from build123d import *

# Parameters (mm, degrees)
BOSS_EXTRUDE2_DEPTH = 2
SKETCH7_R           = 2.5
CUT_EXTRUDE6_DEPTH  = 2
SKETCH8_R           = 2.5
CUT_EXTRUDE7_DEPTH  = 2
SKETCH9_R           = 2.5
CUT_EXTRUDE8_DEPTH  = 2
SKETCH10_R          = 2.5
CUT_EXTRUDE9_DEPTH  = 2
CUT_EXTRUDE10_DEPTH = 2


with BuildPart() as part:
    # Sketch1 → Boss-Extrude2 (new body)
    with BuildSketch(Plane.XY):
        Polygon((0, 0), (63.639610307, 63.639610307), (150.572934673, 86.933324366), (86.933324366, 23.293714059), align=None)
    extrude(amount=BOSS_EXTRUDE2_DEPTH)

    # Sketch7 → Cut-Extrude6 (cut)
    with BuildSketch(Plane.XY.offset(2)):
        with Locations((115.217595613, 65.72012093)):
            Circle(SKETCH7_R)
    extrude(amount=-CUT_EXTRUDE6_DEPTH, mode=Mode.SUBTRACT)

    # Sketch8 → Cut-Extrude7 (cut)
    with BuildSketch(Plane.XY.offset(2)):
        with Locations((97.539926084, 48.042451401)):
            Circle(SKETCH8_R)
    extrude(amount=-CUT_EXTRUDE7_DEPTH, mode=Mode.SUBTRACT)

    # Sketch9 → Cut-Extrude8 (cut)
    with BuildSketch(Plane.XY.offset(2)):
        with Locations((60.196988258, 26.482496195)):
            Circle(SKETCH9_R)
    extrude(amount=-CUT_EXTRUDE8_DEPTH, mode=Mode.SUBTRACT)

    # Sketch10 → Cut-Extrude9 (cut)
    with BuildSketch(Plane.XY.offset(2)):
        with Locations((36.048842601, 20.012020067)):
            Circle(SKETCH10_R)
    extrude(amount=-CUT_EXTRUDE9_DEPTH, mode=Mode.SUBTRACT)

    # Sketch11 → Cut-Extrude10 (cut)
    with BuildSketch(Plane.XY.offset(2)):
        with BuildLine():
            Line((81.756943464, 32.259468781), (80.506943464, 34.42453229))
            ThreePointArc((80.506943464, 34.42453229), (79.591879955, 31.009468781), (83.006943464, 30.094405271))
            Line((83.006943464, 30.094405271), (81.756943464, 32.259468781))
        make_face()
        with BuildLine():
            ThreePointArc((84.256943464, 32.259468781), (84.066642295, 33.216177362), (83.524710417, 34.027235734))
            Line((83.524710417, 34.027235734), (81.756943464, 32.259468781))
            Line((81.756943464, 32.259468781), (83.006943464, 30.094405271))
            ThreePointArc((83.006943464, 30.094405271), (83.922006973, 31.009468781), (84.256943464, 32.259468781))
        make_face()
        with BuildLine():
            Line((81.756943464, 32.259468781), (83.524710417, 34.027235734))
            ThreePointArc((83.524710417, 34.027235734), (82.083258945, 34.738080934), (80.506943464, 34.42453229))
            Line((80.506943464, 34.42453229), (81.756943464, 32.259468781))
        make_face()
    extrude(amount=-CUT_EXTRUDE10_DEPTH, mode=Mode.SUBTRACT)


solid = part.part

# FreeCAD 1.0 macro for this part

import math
import FreeCAD as App
import Part
import Sketcher
from FreeCAD import Vector
Q = App.Units.Quantity

doc = App.newDocument("Part")
body = doc.addObject("PartDesign::Body", "Body")

# Sketch on XY plane
sketch1 = body.newObject("Sketcher::SketchObject", "Sketch")
sketch1.AttachmentSupport = (doc.getObject("XY_Plane"), [""])
sketch1.MapMode = "FlatFace"
sketch1.addGeometry([
    Part.LineSegment(Vector(64, 64, 0), Vector(0, 0, 0)),
    Part.LineSegment(Vector(0, 0, 0), Vector(87, 23, 0)),
    Part.LineSegment(Vector(87, 23, 0), Vector(151, 87, 0)),
    Part.LineSegment(Vector(151, 87, 0), Vector(64, 64, 0)),
], False)
sketch1.addConstraint([
    Sketcher.Constraint("Coincident", 0, 2, 1, 1),
    Sketcher.Constraint("Coincident", 1, 2, 2, 1),
    Sketcher.Constraint("Coincident", 2, 2, 3, 1),
    Sketcher.Constraint("Coincident", 3, 2, 0, 1),
    Sketcher.Constraint("Coincident", 0, 2, -1, 1),
    Sketcher.Constraint("Parallel", 0, 2),
    Sketcher.Constraint("Parallel", 1, 3),
    Sketcher.Constraint("Equal", 0, 1),
    Sketcher.Constraint("Angle", 0, Q("-135 deg")),
    Sketcher.Constraint("Angle", 1, Q("15 deg")),
    Sketcher.Constraint("Distance", 0, Q("90 mm")),
])
pad1 = body.newObject("PartDesign::Pad", "Pad")
pad1.Profile = sketch1
pad1.Length = 2

# Sketch on XY plane
sketch2 = body.newObject("Sketcher::SketchObject", "Sketch001")
sketch2.AttachmentSupport = (doc.getObject("XY_Plane"), [""])
sketch2.MapMode = "FlatFace"
sketch2.AttachmentOffset = App.Placement(Vector(0, 0, 2), App.Rotation())
sketch2.addGeometry(Part.Circle(Vector(115.2, 65.7, 0), Vector(0, 0, 1), 2.5), False)
sketch2.addConstraint([
    Sketcher.Constraint("Diameter", 0, Q("5 mm")),
    Sketcher.Constraint("DistanceY", -1, 1, 0, 3, Q("65.720121 mm")),
    Sketcher.Constraint("DistanceX", -1, 1, 0, 3, Q("115.217596 mm")),
])
pocket1 = body.newObject("PartDesign::Pocket", "Pocket")
pocket1.Profile = sketch2
pocket1.Length = 2

# Sketch on XY plane
sketch3 = body.newObject("Sketcher::SketchObject", "Sketch002")
sketch3.AttachmentSupport = (doc.getObject("XY_Plane"), [""])
sketch3.MapMode = "FlatFace"
sketch3.AttachmentOffset = App.Placement(Vector(0, 0, 2), App.Rotation())
sketch3.addGeometry(Part.Circle(Vector(97.5, 48, 0), Vector(0, 0, 1), 2.5), False)
sketch3.addConstraint([
    Sketcher.Constraint("Diameter", 0, Q("5 mm")),
    Sketcher.Constraint("DistanceY", -1, 1, 0, 3, Q("48.042451 mm")),
    Sketcher.Constraint("DistanceX", -1, 1, 0, 3, Q("97.539926 mm")),
])
pocket2 = body.newObject("PartDesign::Pocket", "Pocket001")
pocket2.Profile = sketch3
pocket2.Length = 2

# Sketch on XY plane
sketch4 = body.newObject("Sketcher::SketchObject", "Sketch003")
sketch4.AttachmentSupport = (doc.getObject("XY_Plane"), [""])
sketch4.MapMode = "FlatFace"
sketch4.AttachmentOffset = App.Placement(Vector(0, 0, 2), App.Rotation())
sketch4.addGeometry(Part.Circle(Vector(60.2, 26.5, 0), Vector(0, 0, 1), 2.5), False)
sketch4.addConstraint([
    Sketcher.Constraint("Diameter", 0, Q("5 mm")),
    Sketcher.Constraint("DistanceX", -1, 1, 0, 3, Q("60.196988 mm")),
    Sketcher.Constraint("DistanceY", -1, 1, 0, 3, Q("26.482496 mm")),
])
pocket3 = body.newObject("PartDesign::Pocket", "Pocket002")
pocket3.Profile = sketch4
pocket3.Length = 2

# Sketch on XY plane
sketch5 = body.newObject("Sketcher::SketchObject", "Sketch004")
sketch5.AttachmentSupport = (doc.getObject("XY_Plane"), [""])
sketch5.MapMode = "FlatFace"
sketch5.AttachmentOffset = App.Placement(Vector(0, 0, 2), App.Rotation())
sketch5.addGeometry(Part.Circle(Vector(36, 20, 0), Vector(0, 0, 1), 2.5), False)
sketch5.addConstraint([
    Sketcher.Constraint("Diameter", 0, Q("5 mm")),
    Sketcher.Constraint("DistanceY", -1, 1, 0, 3, Q("20.01202 mm")),
    Sketcher.Constraint("DistanceX", -1, 1, 0, 3, Q("36.048843 mm")),
])
pocket4 = body.newObject("PartDesign::Pocket", "Pocket003")
pocket4.Profile = sketch5
pocket4.Length = 2

# Sketch on XY plane
sketch6 = body.newObject("Sketcher::SketchObject", "Sketch005")
sketch6.AttachmentSupport = (doc.getObject("XY_Plane"), [""])
sketch6.MapMode = "FlatFace"
sketch6.AttachmentOffset = App.Placement(Vector(0, 0, 2), App.Rotation())
sketch6.addGeometry([
    Part.ArcOfCircle(Part.Circle(Vector(81.8, 32.3, 0), Vector(0, 0, 1), 2.5), math.radians(45), math.radians(120)),
    Part.ArcOfCircle(Part.Circle(Vector(81.8, 32.3, 0), Vector(0, 0, 1), 2.5), math.radians(120), math.radians(300)),
    Part.ArcOfCircle(Part.Circle(Vector(81.8, 32.3, 0), Vector(0, 0, 1), 2.5), math.radians(-60), math.radians(0)),
    Part.ArcOfCircle(Part.Circle(Vector(81.8, 32.3, 0), Vector(0, 0, 1), 2.5), math.radians(0), math.radians(45)),
], False)
sketch6.addConstraint([
    Sketcher.Constraint("Tangent", 0, 2, 1, 1),
    Sketcher.Constraint("Tangent", 1, 2, 2, 1),
    Sketcher.Constraint("Tangent", 2, 2, 3, 1),
    Sketcher.Constraint("Tangent", 3, 2, 0, 1),
    Sketcher.Constraint("Equal", 0, 1),
    Sketcher.Constraint("Horizontal", 3, 3, 2, 2),
    Sketcher.Constraint("Radius", 0, Q("2.5 mm")),
    Sketcher.Constraint("DistanceX", 0, 2, 1, 2, Q("2.5 mm")),
    Sketcher.Constraint("DistanceX", 0, 2, 2, 3, Q("1.25 mm")),
    Sketcher.Constraint("DistanceY", -1, 1, 0, 3, Q("32.259469 mm")),
    Sketcher.Constraint("DistanceX", -1, 1, 3, 2, Q("83.52471 mm")),
    Sketcher.Constraint("DistanceX", -1, 1, 0, 3, Q("81.756943 mm")),
])
pocket5 = body.newObject("PartDesign::Pocket", "Pocket004")
pocket5.Profile = sketch6
pocket5.Length = 2

doc.recompute()
